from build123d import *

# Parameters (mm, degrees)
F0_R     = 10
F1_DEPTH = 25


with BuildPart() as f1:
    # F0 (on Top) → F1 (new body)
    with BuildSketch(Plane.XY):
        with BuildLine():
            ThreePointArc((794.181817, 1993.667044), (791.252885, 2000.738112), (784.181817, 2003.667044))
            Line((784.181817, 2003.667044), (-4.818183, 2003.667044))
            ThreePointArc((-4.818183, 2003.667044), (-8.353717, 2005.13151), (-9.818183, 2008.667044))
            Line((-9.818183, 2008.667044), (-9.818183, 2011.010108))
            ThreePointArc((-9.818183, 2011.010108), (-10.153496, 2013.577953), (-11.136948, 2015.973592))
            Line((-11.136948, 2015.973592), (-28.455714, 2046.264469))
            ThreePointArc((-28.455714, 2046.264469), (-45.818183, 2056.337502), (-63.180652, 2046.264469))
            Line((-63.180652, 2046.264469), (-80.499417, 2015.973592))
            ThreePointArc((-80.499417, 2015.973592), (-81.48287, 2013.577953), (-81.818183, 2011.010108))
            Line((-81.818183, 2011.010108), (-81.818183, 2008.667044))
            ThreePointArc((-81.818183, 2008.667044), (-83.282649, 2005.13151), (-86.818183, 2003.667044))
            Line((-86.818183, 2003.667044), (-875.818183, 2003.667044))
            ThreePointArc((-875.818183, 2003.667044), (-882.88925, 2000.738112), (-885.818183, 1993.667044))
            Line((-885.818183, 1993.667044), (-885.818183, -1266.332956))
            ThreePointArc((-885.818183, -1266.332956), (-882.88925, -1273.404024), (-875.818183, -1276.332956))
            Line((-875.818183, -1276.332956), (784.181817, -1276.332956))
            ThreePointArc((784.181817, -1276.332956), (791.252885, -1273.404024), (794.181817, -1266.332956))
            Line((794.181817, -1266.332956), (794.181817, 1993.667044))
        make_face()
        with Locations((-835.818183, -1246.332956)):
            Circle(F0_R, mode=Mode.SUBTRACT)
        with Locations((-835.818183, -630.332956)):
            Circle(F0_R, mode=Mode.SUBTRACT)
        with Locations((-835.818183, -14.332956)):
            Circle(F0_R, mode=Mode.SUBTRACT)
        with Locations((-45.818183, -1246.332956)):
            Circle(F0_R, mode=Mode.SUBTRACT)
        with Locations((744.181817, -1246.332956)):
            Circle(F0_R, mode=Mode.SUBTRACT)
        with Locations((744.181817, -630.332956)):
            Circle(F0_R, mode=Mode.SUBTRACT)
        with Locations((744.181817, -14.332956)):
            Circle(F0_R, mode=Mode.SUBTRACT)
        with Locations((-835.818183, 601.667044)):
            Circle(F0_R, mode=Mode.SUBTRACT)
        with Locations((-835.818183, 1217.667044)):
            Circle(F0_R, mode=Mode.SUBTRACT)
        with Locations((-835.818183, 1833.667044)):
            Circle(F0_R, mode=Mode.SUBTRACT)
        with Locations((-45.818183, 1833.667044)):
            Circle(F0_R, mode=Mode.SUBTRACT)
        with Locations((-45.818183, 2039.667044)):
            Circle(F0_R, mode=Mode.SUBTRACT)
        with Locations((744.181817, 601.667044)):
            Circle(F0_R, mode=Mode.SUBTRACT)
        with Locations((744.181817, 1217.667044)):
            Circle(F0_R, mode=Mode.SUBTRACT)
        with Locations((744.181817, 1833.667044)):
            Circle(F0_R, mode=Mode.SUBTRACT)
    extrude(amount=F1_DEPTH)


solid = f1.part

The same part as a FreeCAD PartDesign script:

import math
import FreeCAD as App
import Part
import Sketcher

V = App.Vector

doc = App.newDocument("Part")
body = doc.addObject("PartDesign::Body", "Body")

sketch1 = body.newObject("Sketcher::SketchObject", "Sketch")
sketch1.AttachmentSupport = (doc.getObject("XY_Plane"), [""])
sketch1.MapMode = "FlatFace"
sketch1.addGeometry(Part.ArcOfCircle(Part.Circle(V(784.2, 1993.7, 0), V(0, 0, 1), 10), math.radians(0), math.radians(90)), False)
sketch1.addGeometry(Part.LineSegment(V(784.2, 2003.7, 0), V(-4.8, 2003.7, 0)), False)
sketch1.addGeometry(Part.ArcOfCircle(Part.Circle(V(-4.8, 2008.7, 0), V(0, 0, 1), 5), math.radians(180), math.radians(270)), False)
sketch1.addGeometry(Part.LineSegment(V(-9.8, 2008.7, 0), V(-9.8, 2011, 0)), False)
sketch1.addGeometry(Part.ArcOfCircle(Part.Circle(V(-19.8, 2011, 0), V(0, 0, 1), 10), math.radians(0), math.radians(30)), False)
sketch1.addGeometry(Part.LineSegment(V(-11.1, 2016, 0), V(-28.5, 2046.3, 0)), False)
sketch1.addGeometry(Part.ArcOfCircle(Part.Circle(V(-45.8, 2036.3, 0), V(0, 0, 1), 20), math.radians(30), math.radians(150)), False)
sketch1.addGeometry(Part.LineSegment(V(-63.2, 2046.3, 0), V(-80.5, 2016, 0)), False)
sketch1.addGeometry(Part.ArcOfCircle(Part.Circle(V(-71.8, 2011, 0), V(0, 0, 1), 10), math.radians(150), math.radians(180)), False)
sketch1.addGeometry(Part.LineSegment(V(-81.8, 2011, 0), V(-81.8, 2008.7, 0)), False)
sketch1.addGeometry(Part.ArcOfCircle(Part.Circle(V(-86.8, 2008.7, 0), V(0, 0, 1), 5), math.radians(-90), math.radians(0)), False)
sketch1.addGeometry(Part.LineSegment(V(-86.8, 2003.7, 0), V(-875.8, 2003.7, 0)), False)
sketch1.addGeometry(Part.ArcOfCircle(Part.Circle(V(-875.8, 1993.7, 0), V(0, 0, 1), 10), math.radians(90), math.radians(180)), False)
sketch1.addGeometry(Part.LineSegment(V(-885.8, 1993.7, 0), V(-885.8, -1266.3, 0)), False)
sketch1.addGeometry(Part.ArcOfCircle(Part.Circle(V(-875.8, -1266.3, 0), V(0, 0, 1), 10), math.radians(-180), math.radians(-90)), False)
sketch1.addGeometry(Part.LineSegment(V(-875.8, -1276.3, 0), V(784.2, -1276.3, 0)), False)
sketch1.addGeometry(Part.ArcOfCircle(Part.Circle(V(784.2, -1266.3, 0), V(0, 0, 1), 10), math.radians(-90), math.radians(0)), False)
sketch1.addGeometry(Part.LineSegment(V(794.2, -1266.3, 0), V(794.2, 1993.7, 0)), False)
sketch1.addGeometry(Part.Circle(V(-835.8, -1246.3, 0), V(0, 0, 1), 10), False)
sketch1.addGeometry(Part.Circle(V(-835.8, -630.3, 0), V(0, 0, 1), 10), False)
sketch1.addGeometry(Part.Circle(V(-835.8, -14.3, 0), V(0, 0, 1), 10), False)
sketch1.addGeometry(Part.Circle(V(-45.8, -1246.3, 0), V(0, 0, 1), 10), False)
sketch1.addGeometry(Part.Circle(V(744.2, -1246.3, 0), V(0, 0, 1), 10), False)
sketch1.addGeometry(Part.Circle(V(744.2, -630.3, 0), V(0, 0, 1), 10), False)
sketch1.addGeometry(Part.Circle(V(744.2, -14.3, 0), V(0, 0, 1), 10), False)
sketch1.addGeometry(Part.Circle(V(-835.8, 601.7, 0), V(0, 0, 1), 10), False)
sketch1.addGeometry(Part.Circle(V(-835.8, 1217.7, 0), V(0, 0, 1), 10), False)
sketch1.addGeometry(Part.Circle(V(-835.8, 1833.7, 0), V(0, 0, 1), 10), False)
sketch1.addGeometry(Part.Circle(V(744.2, 601.7, 0), V(0, 0, 1), 10), False)
sketch1.addGeometry(Part.Circle(V(744.2, 1217.7, 0), V(0, 0, 1), 10), False)
sketch1.addGeometry(Part.Circle(V(-45.8, 1833.7, 0), V(0, 0, 1), 10), False)
sketch1.addGeometry(Part.Circle(V(-45.8, 2039.7, 0), V(0, 0, 1), 10), False)
sketch1.addGeometry(Part.Circle(V(744.2, 1833.7, 0), V(0, 0, 1), 10), False)
sketch1.addConstraint(Sketcher.Constraint("Tangent", 0, 2, 1, 1))
sketch1.addConstraint(Sketcher.Constraint("Tangent", 1, 2, 2, 2))
sketch1.addConstraint(Sketcher.Constraint("Tangent", 2, 1, 3, 1))
sketch1.addConstraint(Sketcher.Constraint("Tangent", 3, 2, 4, 1))
sketch1.addConstraint(Sketcher.Constraint("Tangent", 4, 2, 5, 1))
sketch1.addConstraint(Sketcher.Constraint("Tangent", 5, 2, 6, 1))
sketch1.addConstraint(Sketcher.Constraint("Tangent", 6, 2, 7, 1))
sketch1.addConstraint(Sketcher.Constraint("Tangent", 7, 2, 8, 1))
sketch1.addConstraint(Sketcher.Constraint("Tangent", 8, 2, 9, 1))
sketch1.addConstraint(Sketcher.Constraint("Tangent", 9, 2, 10, 2))
sketch1.addConstraint(Sketcher.Constraint("Tangent", 10, 1, 11, 1))
sketch1.addConstraint(Sketcher.Constraint("Tangent", 11, 2, 12, 1))
sketch1.addConstraint(Sketcher.Constraint("Tangent", 12, 2, 13, 1))
sketch1.addConstraint(Sketcher.Constraint("Tangent", 13, 2, 14, 1))
sketch1.addConstraint(Sketcher.Constraint("Tangent", 14, 2, 15, 1))
sketch1.addConstraint(Sketcher.Constraint("Tangent", 15, 2, 16, 1))
sketch1.addConstraint(Sketcher.Constraint("Tangent", 16, 2, 17, 1))
sketch1.addConstraint(Sketcher.Constraint("Tangent", 17, 2, 0, 1))
sketch1.addConstraint(Sketcher.Constraint("Horizontal", 1))
sketch1.addConstraint(Sketcher.Constraint("Vertical", 3))
sketch1.addConstraint(Sketcher.Constraint("Vertical", 9))
sketch1.addConstraint(Sketcher.Constraint("Horizontal", 11))
sketch1.addConstraint(Sketcher.Constraint("Vertical", 13))
sketch1.addConstraint(Sketcher.Constraint("Horizontal", 15))
sketch1.addConstraint(Sketcher.Constraint("Vertical", 17))
sketch1.addConstraint(Sketcher.Constraint("Equal", 2, 10))
sketch1.addConstraint(Sketcher.Constraint("Equal", 0, 12))
sketch1.addConstraint(Sketcher.Constraint("Equal", 12, 14))
sketch1.addConstraint(Sketcher.Constraint("Equal", 14, 16))
sketch1.addConstraint(Sketcher.Constraint("Equal", 16, 18))
sketch1.addConstraint(Sketcher.Constraint("Equal", 18, 19))
sketch1.addConstraint(Sketcher.Constraint("Equal", 19, 20))
sketch1.addConstraint(Sketcher.Constraint("Equal", 20, 21))
sketch1.addConstraint(Sketcher.Constraint("Equal", 21, 22))
sketch1.addConstraint(Sketcher.Constraint("Equal", 22, 23))
sketch1.addConstraint(Sketcher.Constraint("Equal", 23, 24))
sketch1.addConstraint(Sketcher.Constraint("Equal", 24, 25))
sketch1.addConstraint(Sketcher.Constraint("Equal", 25, 26))
sketch1.addConstraint(Sketcher.Constraint("Equal", 26, 27))
sketch1.addConstraint(Sketcher.Constraint("Equal", 27, 28))
sketch1.addConstraint(Sketcher.Constraint("Equal", 28, 29))
sketch1.addConstraint(Sketcher.Constraint("Equal", 29, 30))
sketch1.addConstraint(Sketcher.Constraint("Equal", 30, 31))
sketch1.addConstraint(Sketcher.Constraint("Equal", 31, 32))
sketch1.addConstraint(Sketcher.Constraint("Horizontal", 4, 3, 8, 3))
sketch1.addConstraint(Sketcher.Constraint("Horizontal", 2, 3, 10, 3))
sketch1.addConstraint(Sketcher.Constraint("Horizontal", 18, 3, 21, 3))
sketch1.addConstraint(Sketcher.Constraint("Horizontal", 21, 3, 22, 3))
sketch1.addConstraint(Sketcher.Constraint("Horizontal", 19, 3, 23, 3))
sketch1.addConstraint(Sketcher.Constraint("Horizontal", 20, 3, 24, 3))
sketch1.addConstraint(Sketcher.Constraint("Horizontal", 25, 3, 28, 3))
sketch1.addConstraint(Sketcher.Constraint("Horizontal", 26, 3, 29, 3))
sketch1.addConstraint(Sketcher.Constraint("Horizontal", 27, 3, 30, 3))
sketch1.addConstraint(Sketcher.Constraint("Horizontal", 30, 3, 32, 3))
sketch1.addConstraint(Sketcher.Constraint("Horizontal", 5, 2, 6, 2))
sketch1.addConstraint(Sketcher.Constraint("Horizontal", 4, 2, 7, 2))
sketch1.addConstraint(Sketcher.Constraint("Vertical", 18, 3, 19, 3))
sketch1.addConstraint(Sketcher.Constraint("Vertical", 19, 3, 20, 3))
sketch1.addConstraint(Sketcher.Constraint("Vertical", 6, 3, 21, 3))
sketch1.addConstraint(Sketcher.Constraint("Vertical", 22, 3, 23, 3))
sketch1.addConstraint(Sketcher.Constraint("Vertical", 23, 3, 24, 3))
sketch1.addConstraint(Sketcher.Constraint("Vertical", 20, 3, 25, 3))
sketch1.addConstraint(Sketcher.Constraint("Vertical", 25, 3, 26, 3))
sketch1.addConstraint(Sketcher.Constraint("Vertical", 26, 3, 27, 3))
sketch1.addConstraint(Sketcher.Constraint("Vertical", 24, 3, 28, 3))
sketch1.addConstraint(Sketcher.Constraint("Vertical", 28, 3, 29, 3))
sketch1.addConstraint(Sketcher.Constraint("Vertical", 21, 3, 30, 3))
sketch1.addConstraint(Sketcher.Constraint("Vertical", 30, 3, 31, 3))
sketch1.addConstraint(Sketcher.Constraint("Vertical", 29, 3, 32, 3))
sketch1.addConstraint(Sketcher.Constraint("Equal", 1, 11))
sketch1.addConstraint(Sketcher.Constraint("Diameter", 18, 20.0))
sketch1.addConstraint(Sketcher.Constraint("Radius", 2, 5.0))
sketch1.addConstraint(Sketcher.Constraint("Radius", 6, 20.0))
sketch1.addConstraint(Sketcher.Constraint("DistanceX", 1, 2, 1, 1, 789.0))
sketch1.addConstraint(Sketcher.Constraint("DistanceX", 15, 1, 15, 2, 1660.0))
sketch1.addConstraint(Sketcher.Constraint("DistanceY", 13, 2, 13, 1, 3260.0))
sketch1.addConstraint(Sketcher.Constraint("DistanceX", 8, 3, 4, 3, 51.999999))
sketch1.addConstraint(Sketcher.Constraint("DistanceX", 14, 3, 18, 3, 39.999999))
sketch1.addConstraint(Sketcher.Constraint("DistanceY", 14, 3, 18, 3, 19.999999))
sketch1.addConstraint(Sketcher.Constraint("DistanceY", 18, 3, 19, 3, 616.0))
sketch1.addConstraint(Sketcher.Constraint("DistanceY", 19, 3, 20, 3, 616.0))
sketch1.addConstraint(Sketcher.Constraint("DistanceX", 22, 3, 16, 3, 40.000001))
sketch1.addConstraint(Sketcher.Constraint("DistanceY", 20, 3, 25, 3, 616.0))
sketch1.addConstraint(Sketcher.Constraint("DistanceY", 25, 3, 26, 3, 616.0))
sketch1.addConstraint(Sketcher.Constraint("DistanceY", 27, 3, 12, 3, 159.999999))
sketch1.addConstraint(Sketcher.Constraint("DistanceY", 2, 3, 31, 3, 31.0))
sketch1.addConstraint(Sketcher.Constraint("DistanceY", -1, 1, 6, 3, 2036.337502))
sketch1.addConstraint(Sketcher.Constraint("Distance", 5, 34.892361))
sketch1.addConstraint(Sketcher.Constraint("DistanceY", 3, 1, 3, 2, 2.343064))
sketch1.addConstraint(Sketcher.Constraint("DistanceX", 4, 3, -1, 1, 19.81819))
pad1 = body.newObject("PartDesign::Pad", "Pad")
pad1.Profile = sketch1
pad1.Length = 25

doc.recompute()
